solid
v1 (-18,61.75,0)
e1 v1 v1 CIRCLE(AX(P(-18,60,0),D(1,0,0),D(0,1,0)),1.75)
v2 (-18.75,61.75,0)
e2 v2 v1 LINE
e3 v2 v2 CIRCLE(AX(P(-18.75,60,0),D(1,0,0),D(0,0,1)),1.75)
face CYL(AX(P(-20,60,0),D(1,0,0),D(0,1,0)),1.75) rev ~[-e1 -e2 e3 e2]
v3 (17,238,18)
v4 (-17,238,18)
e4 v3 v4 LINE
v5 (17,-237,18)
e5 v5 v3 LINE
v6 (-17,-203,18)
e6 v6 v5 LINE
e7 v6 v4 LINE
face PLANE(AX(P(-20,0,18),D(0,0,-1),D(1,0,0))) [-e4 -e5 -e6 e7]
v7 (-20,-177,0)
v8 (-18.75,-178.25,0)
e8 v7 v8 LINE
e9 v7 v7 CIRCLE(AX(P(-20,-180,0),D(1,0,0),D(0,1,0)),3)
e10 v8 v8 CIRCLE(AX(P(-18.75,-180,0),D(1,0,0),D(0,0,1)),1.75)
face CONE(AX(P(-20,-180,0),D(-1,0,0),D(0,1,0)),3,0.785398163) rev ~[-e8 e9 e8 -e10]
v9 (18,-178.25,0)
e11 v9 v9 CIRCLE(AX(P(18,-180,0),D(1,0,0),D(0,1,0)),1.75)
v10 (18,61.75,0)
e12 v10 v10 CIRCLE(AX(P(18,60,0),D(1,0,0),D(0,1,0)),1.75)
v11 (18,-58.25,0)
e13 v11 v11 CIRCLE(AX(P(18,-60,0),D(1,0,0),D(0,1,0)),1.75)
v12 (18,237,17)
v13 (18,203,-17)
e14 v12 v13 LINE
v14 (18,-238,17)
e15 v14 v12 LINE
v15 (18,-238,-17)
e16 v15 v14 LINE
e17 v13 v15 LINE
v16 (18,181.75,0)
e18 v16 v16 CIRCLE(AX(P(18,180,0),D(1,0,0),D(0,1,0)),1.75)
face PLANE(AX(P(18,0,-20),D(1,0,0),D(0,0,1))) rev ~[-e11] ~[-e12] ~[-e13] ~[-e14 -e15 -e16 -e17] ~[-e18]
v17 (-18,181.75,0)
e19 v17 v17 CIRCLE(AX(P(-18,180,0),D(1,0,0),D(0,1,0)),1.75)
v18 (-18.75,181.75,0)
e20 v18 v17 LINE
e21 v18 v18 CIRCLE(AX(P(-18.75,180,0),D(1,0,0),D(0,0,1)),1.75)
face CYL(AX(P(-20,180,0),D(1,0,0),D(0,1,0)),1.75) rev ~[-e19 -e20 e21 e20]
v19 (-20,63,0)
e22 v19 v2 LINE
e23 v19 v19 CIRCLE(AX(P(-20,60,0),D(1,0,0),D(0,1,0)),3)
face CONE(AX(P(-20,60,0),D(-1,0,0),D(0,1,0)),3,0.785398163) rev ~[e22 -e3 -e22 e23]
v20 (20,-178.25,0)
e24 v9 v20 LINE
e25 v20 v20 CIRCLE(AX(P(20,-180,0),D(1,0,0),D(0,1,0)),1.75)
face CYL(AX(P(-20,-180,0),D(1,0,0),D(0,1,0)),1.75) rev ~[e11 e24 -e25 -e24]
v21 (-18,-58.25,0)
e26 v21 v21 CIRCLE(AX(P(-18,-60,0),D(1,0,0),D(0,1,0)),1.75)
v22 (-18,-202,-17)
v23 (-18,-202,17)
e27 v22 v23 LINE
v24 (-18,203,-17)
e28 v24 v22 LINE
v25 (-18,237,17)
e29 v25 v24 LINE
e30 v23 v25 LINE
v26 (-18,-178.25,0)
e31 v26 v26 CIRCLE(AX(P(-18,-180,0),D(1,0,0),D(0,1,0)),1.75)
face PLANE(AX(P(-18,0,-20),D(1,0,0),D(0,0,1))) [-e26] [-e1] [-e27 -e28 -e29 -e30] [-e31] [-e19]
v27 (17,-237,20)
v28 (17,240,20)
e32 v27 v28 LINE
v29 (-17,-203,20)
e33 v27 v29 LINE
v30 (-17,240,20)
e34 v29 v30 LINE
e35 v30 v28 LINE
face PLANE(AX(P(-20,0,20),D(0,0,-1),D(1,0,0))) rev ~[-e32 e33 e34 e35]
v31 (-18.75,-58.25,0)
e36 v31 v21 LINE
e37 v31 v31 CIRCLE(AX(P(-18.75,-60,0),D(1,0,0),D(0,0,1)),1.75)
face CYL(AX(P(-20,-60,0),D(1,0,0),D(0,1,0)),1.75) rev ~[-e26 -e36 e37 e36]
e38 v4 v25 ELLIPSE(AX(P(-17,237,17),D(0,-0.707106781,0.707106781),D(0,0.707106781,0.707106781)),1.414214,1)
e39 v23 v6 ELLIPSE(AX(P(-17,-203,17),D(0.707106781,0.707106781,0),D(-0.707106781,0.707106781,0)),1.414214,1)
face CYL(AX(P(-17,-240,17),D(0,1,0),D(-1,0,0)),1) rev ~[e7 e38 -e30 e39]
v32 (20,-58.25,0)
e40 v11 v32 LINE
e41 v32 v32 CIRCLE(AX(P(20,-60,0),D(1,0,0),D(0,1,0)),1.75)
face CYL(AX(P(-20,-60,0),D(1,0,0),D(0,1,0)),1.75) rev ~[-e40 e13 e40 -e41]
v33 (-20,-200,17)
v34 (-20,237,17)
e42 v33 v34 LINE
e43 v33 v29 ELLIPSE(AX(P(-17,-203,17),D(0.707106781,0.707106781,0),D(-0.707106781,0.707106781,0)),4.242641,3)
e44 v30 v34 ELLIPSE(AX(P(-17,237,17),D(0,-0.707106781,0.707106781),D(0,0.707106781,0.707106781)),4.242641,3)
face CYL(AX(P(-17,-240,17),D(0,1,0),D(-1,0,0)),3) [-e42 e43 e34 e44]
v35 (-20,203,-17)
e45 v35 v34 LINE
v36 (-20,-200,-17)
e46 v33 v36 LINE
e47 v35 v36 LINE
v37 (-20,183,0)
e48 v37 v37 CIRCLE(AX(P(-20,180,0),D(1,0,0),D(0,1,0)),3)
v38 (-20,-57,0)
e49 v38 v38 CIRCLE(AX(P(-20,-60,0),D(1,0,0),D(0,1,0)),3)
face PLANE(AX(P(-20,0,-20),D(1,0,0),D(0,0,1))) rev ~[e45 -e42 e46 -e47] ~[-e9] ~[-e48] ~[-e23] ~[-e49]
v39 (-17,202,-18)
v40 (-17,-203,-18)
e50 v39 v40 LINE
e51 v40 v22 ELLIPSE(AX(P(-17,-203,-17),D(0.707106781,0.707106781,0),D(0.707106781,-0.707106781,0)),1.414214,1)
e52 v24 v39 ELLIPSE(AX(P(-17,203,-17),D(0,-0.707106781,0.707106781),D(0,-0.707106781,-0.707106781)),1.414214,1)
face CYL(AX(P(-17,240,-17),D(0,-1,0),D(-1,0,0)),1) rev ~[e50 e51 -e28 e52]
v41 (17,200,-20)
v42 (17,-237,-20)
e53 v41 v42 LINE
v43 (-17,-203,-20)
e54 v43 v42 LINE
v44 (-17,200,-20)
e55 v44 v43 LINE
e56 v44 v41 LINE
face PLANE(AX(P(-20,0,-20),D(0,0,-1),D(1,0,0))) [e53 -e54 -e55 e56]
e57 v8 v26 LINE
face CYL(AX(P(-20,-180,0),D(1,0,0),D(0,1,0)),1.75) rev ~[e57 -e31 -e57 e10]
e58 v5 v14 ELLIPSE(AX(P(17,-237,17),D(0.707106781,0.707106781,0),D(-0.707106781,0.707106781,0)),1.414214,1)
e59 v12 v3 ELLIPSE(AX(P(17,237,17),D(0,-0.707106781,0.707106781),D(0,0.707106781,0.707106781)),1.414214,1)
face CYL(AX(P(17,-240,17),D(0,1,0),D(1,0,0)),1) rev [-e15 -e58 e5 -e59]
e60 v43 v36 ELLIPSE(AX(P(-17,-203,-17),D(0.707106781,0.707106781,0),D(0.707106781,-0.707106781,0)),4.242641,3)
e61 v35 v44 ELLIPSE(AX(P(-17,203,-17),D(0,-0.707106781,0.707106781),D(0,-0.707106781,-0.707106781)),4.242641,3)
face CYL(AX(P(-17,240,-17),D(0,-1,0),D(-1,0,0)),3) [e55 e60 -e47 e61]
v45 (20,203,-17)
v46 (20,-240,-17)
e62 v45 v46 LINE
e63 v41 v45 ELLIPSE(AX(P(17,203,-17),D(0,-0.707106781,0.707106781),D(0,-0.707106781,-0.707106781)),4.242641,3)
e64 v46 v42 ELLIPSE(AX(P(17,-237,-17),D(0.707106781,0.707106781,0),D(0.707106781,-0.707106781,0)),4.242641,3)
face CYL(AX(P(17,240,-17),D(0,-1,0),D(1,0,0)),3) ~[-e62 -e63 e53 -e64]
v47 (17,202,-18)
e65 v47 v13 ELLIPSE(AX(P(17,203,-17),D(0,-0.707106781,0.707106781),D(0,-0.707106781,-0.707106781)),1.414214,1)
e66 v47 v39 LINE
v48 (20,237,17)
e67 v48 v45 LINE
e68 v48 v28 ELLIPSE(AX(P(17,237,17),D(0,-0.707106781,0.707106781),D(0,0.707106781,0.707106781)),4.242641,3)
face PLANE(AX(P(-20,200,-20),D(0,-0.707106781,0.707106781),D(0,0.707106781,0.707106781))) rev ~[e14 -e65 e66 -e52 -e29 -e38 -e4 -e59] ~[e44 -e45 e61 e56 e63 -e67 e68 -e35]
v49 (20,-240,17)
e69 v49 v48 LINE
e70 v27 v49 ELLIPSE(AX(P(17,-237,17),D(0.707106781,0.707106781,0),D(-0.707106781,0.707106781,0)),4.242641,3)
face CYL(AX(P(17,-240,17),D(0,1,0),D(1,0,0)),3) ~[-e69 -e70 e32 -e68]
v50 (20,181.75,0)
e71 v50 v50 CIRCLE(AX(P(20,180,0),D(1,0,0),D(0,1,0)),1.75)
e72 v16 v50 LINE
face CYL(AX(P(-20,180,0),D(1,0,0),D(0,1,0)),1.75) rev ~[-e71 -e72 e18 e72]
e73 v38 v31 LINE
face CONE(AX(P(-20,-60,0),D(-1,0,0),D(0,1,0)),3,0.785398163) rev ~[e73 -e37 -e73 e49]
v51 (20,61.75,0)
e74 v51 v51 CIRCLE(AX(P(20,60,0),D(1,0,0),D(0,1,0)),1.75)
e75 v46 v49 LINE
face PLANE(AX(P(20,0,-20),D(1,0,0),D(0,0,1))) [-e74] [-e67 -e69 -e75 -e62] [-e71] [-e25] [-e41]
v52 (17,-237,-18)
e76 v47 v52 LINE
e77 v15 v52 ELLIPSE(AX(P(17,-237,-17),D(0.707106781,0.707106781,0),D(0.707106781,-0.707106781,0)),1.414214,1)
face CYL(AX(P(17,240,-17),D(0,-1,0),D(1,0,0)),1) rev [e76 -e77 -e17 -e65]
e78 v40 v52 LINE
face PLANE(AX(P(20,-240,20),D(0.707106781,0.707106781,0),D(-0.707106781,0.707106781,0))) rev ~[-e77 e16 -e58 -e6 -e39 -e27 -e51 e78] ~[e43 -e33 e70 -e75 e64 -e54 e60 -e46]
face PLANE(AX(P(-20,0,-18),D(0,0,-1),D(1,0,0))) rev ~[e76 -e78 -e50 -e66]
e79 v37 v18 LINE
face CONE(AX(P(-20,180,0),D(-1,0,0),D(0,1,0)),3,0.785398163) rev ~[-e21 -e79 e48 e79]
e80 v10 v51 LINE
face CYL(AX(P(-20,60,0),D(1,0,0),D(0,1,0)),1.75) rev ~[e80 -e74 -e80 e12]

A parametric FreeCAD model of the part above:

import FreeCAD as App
import Part
import Sketcher

V = App.Vector


def edges_at(feature, points):
    """Names of the edges that pass closest to the given points."""
    edges = feature.Shape.Edges
    near = lambda p: min(range(len(edges)), key=lambda i: edges[i].distToShape(Part.Vertex(*p))[0])
    return sorted({f"Edge{near(p) + 1}" for p in points})


def faces_at(feature, points):
    """Names of the faces that lie closest to the given points."""
    faces = feature.Shape.Faces
    near = lambda p: min(range(len(faces)), key=lambda i: faces[i].distToShape(Part.Vertex(*p))[0])
    return sorted({f"Face{near(p) + 1}" for p in points})


def add_polygon(sketch, points):
    """Adds a closed chain of lines whose ends are joined by coincident constraints."""
    first, n = sketch.GeometryCount, len(points)
    for a, b in zip(points, points[1:] + points[:1]):
        sketch.addGeometry(Part.LineSegment(App.Vector(*a, 0), App.Vector(*b, 0)), False)
    for i in range(n):
        sketch.addConstraint(Sketcher.Constraint("Coincident", first + i, 2, first + (i + 1) % n, 1))

doc = App.newDocument("Part")
params = doc.addObject("Spreadsheet::Sheet", "Params")
for row, (alias, value) in enumerate([
    ("sketch1_width", "40 mm"),
    ("pad1_length", "480 mm"),
    ("fillet_radius", "3 mm"),
    ("thickness_wall", "2 mm"),
    ("sketch2_width", "40 mm"),
    ("sketch3_width", "40 mm"),
    ("sketch4_diameter", "3.5 mm"),
    ("hole_diameter", "3.5 mm"),
    ("hole_csink_diameter", "6 mm"),
], start=1):
    params.set(f"A{row}", alias)
    params.set(f"B{row}", "=" + value)
    params.setAlias(f"B{row}", alias)

body = doc.addObject("PartDesign::Body", "Body")

# Sketch on XZ plane
sketch1 = body.newObject("Sketcher::SketchObject", "Sketch")
sketch1.AttachmentSupport = (doc.getObject("XZ_Plane"), [""])
sketch1.MapMode = "FlatFace"
add_polygon(sketch1, [(-20, 20), (-20, -20), (20, -20), (20, 20)])  # lines 0-3
sketch1.addConstraint(Sketcher.Constraint("Vertical", 0))
sketch1.addConstraint(Sketcher.Constraint("Horizontal", 1))
sketch1.addConstraint(Sketcher.Constraint("Vertical", 2))
sketch1.addConstraint(Sketcher.Constraint("Horizontal", 3))
sketch1.addConstraint(Sketcher.Constraint("Symmetric", 0, 2, 2, 2, -1, 1))
sketch1.addConstraint(Sketcher.Constraint("Equal", 3, 0))
sketch1.addConstraint(Sketcher.Constraint("DistanceX", 1, 1, 1, 2, 40.0))
sketch1.setExpression("Constraints[10]", "Params.sketch1_width")
pad1 = body.newObject("PartDesign::Pad", "Pad")
pad1.Profile = sketch1
pad1.setExpression("Length", "Params.pad1_length")
pad1.Midplane = True
doc.recompute()

fillet = body.newObject("PartDesign::Fillet", "Fillet")
fillet.Base = (pad1, edges_at(pad1, [
    (20, 0, 20),
    (-20, 0, 20),
    (20, 0, -20),
    (-20, 0, -20),
]))
fillet.setExpression("Radius", "Params.fillet_radius")
doc.recompute()

thickness = body.newObject("PartDesign::Thickness", "Thickness")
thickness.Base = (fillet, faces_at(fillet, [(0, -240, 0), (0, 240, 0)]))
thickness.setExpression("Value", "Params.thickness_wall")
thickness.Reversed = True
thickness.Join = "Arc"

# Sketch on YZ plane
sketch2 = body.newObject("Sketcher::SketchObject", "Sketch001")
sketch2.AttachmentSupport = (doc.getObject("YZ_Plane"), [""])
sketch2.MapMode = "FlatFace"
sketch2.AttachmentOffset = App.Placement(V(0, 0, -20), App.Rotation())
add_polygon(sketch2, [(240, 20), (240, -20), (200, -20)])  # lines 0-2
sketch2.addConstraint(Sketcher.Constraint("Vertical", 0))
sketch2.addConstraint(Sketcher.Constraint("Horizontal", 1))
sketch2.addConstraint(Sketcher.Constraint("Equal", 1, 0))
sketch2.addConstraint(Sketcher.Constraint("DistanceX", 1, 2, 1, 1, 40.0))
sketch2.addConstraint(Sketcher.Constraint("DistanceX", -1, 1, 0, 2, 240.0))
sketch2.addConstraint(Sketcher.Constraint("DistanceY", 0, 2, -1, 1, 20.0))
sketch2.setExpression("Constraints[6]", "Params.sketch2_width")
pocket1 = body.newObject("PartDesign::Pocket", "Pocket")
pocket1.Profile = sketch2
pocket1.Type = "ThroughAll"
pocket1.Reversed = True

# Sketch on XY plane
sketch3 = body.newObject("Sketcher::SketchObject", "Sketch002")
sketch3.AttachmentSupport = (doc.getObject("XY_Plane"), [""])
sketch3.MapMode = "FlatFace"
sketch3.AttachmentOffset = App.Placement(V(0, 0, 20), App.Rotation())
add_polygon(sketch3, [(-20, -200), (-20, -240), (20, -240)])  # lines 0-2
sketch3.addConstraint(Sketcher.Constraint("Vertical", 0))
sketch3.addConstraint(Sketcher.Constraint("Horizontal", 1))
sketch3.addConstraint(Sketcher.Constraint("Equal", 1, 0))
sketch3.addConstraint(Sketcher.Constraint("DistanceX", 1, 1, 1, 2, 40.0))
sketch3.addConstraint(Sketcher.Constraint("DistanceX", 0, 2, -1, 1, 20.0))
sketch3.addConstraint(Sketcher.Constraint("DistanceY", 0, 2, -1, 1, 240.0))
sketch3.setExpression("Constraints[6]", "Params.sketch3_width")
pocket2 = body.newObject("PartDesign::Pocket", "Pocket001")
pocket2.Profile = sketch3
pocket2.Type = "ThroughAll"

# Sketch on YZ plane
sketch4 = body.newObject("Sketcher::SketchObject", "Sketch003")
sketch4.AttachmentSupport = (doc.getObject("YZ_Plane"), [""])
sketch4.MapMode = "FlatFace"
sketch4.AttachmentOffset = App.Placement(V(0, 0, -20), App.Rotation())
sketch4.addGeometry(Part.Circle(V(180, 0, 0), V(0, 0, 1), 1.8), False)
sketch4.addGeometry(Part.Circle(V(60, 0, 0), V(0, 0, 1), 1.8), False)
sketch4.addGeometry(Part.Circle(V(-60, 0, 0), V(0, 0, 1), 1.8), False)
sketch4.addGeometry(Part.Circle(V(-180, 0, 0), V(0, 0, 1), 1.8), False)
sketch4.addConstraint(Sketcher.Constraint("Equal", 0, 1))
sketch4.addConstraint(Sketcher.Constraint("Equal", 1, 2))
sketch4.addConstraint(Sketcher.Constraint("Equal", 2, 3))
sketch4.addConstraint(Sketcher.Constraint("Symmetric", 1, 3, 2, 3, -1, 1))
sketch4.addConstraint(Sketcher.Constraint("Symmetric", 0, 3, 3, 3, -1, 1))
sketch4.addConstraint(Sketcher.Constraint("PointOnObject", 0, 3, -1))
sketch4.addConstraint(Sketcher.Constraint("PointOnObject", 1, 3, -1))
sketch4.addConstraint(Sketcher.Constraint("Diameter", 0, 3.5))
sketch4.addConstraint(Sketcher.Constraint("DistanceX", -1, 1, 0, 3, 180.0))
sketch4.addConstraint(Sketcher.Constraint("DistanceX", -1, 1, 1, 3, 60.0))
sketch4.setExpression("Constraints[7]", "Params.sketch4_diameter")
doc.recompute()
hole = body.newObject("PartDesign::Hole", "Hole")
hole.Profile = sketch4
hole.ThreadType = "None"
hole.setExpression("Diameter", "Params.hole_diameter")
hole.DepthType = "ThroughAll"
hole.HoleCutType = "Countersink"
hole.setExpression("HoleCutDiameter", "Params.hole_csink_diameter")
hole.HoleCutCountersinkAngle = 90
hole.Reversed = True

doc.recompute()
